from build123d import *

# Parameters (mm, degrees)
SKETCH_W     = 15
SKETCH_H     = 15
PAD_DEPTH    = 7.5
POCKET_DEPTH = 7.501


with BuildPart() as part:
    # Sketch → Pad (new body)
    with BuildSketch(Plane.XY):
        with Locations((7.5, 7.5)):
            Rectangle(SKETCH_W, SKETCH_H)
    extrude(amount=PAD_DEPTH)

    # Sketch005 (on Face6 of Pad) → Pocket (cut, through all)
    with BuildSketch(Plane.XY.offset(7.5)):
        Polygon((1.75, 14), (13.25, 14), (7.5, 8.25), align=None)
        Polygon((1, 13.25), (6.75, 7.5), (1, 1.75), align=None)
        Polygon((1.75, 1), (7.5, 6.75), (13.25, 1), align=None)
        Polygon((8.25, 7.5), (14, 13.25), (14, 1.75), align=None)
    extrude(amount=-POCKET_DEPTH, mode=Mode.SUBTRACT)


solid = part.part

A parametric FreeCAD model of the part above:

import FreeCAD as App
import Part
import Sketcher
from FreeCAD import Vector
Q = App.Units.Quantity

doc = App.newDocument("Part")
body = doc.addObject("PartDesign::Body", "Body")

# Sketch on XY plane
sketch1 = body.newObject("Sketcher::SketchObject", "Sketch")
sketch1.AttachmentSupport = (doc.getObject("XY_Plane"), [""])
sketch1.MapMode = "FlatFace"
sketch1.addGeometry([
    Part.LineSegment(Vector(0, 15, 0), Vector(0, 0, 0)),
    Part.LineSegment(Vector(0, 0, 0), Vector(15, 0, 0)),
    Part.LineSegment(Vector(15, 0, 0), Vector(15, 15, 0)),
    Part.LineSegment(Vector(15, 15, 0), Vector(0, 15, 0)),
], False)
sketch1.addConstraint([
    Sketcher.Constraint("Coincident", 0, 2, 1, 1),
    Sketcher.Constraint("Coincident", 1, 2, 2, 1),
    Sketcher.Constraint("Coincident", 2, 2, 3, 1),
    Sketcher.Constraint("Coincident", 3, 2, 0, 1),
    Sketcher.Constraint("Vertical", 0),
    Sketcher.Constraint("Horizontal", 1),
    Sketcher.Constraint("Vertical", 2),
    Sketcher.Constraint("Horizontal", 3),
    Sketcher.Constraint("Coincident", 0, 2, -1, 1),
    Sketcher.Constraint("Equal", 3, 0),
    Sketcher.Constraint("DistanceX", 1, 1, 1, 2, Q("15 mm")),
])
pad1 = body.newObject("PartDesign::Pad", "Pad")
pad1.Profile = sketch1
pad1.Length = 7.5

# Sketch on XY plane
sketch2 = body.newObject("Sketcher::SketchObject", "Sketch001")
sketch2.AttachmentSupport = (doc.getObject("XY_Plane"), [""])
sketch2.MapMode = "FlatFace"
sketch2.AttachmentOffset = App.Placement(Vector(0, 0, 7.5), App.Rotation())
sketch2.addGeometry([
    Part.LineSegment(Vector(13, 14, 0), Vector(2, 14, 0)),  # 0
    Part.LineSegment(Vector(2, 14, 0), Vector(8, 8, 0)),  # 1
    Part.LineSegment(Vector(8, 8, 0), Vector(13, 14, 0)),  # 2
    Part.LineSegment(Vector(7, 8, 0), Vector(1, 13, 0)),  # 3
    Part.LineSegment(Vector(1, 13, 0), Vector(1, 2, 0)),  # 4
    Part.LineSegment(Vector(1, 2, 0), Vector(7, 8, 0)),  # 5
    Part.LineSegment(Vector(8, 7, 0), Vector(2, 1, 0)),  # 6
    Part.LineSegment(Vector(2, 1, 0), Vector(13, 1, 0)),  # 7
    Part.LineSegment(Vector(13, 1, 0), Vector(8, 7, 0)),  # 8
    Part.LineSegment(Vector(14, 13, 0), Vector(8, 8, 0)),  # 9
    Part.LineSegment(Vector(8, 8, 0), Vector(14, 2, 0)),  # 10
    Part.LineSegment(Vector(14, 2, 0), Vector(14, 13, 0)),  # 11
], False)
sketch2.addConstraint([
    Sketcher.Constraint("Coincident", 0, 2, 1, 1),
    Sketcher.Constraint("Coincident", 1, 2, 2, 1),
    Sketcher.Constraint("Coincident", 2, 2, 0, 1),
    Sketcher.Constraint("Coincident", 3, 2, 4, 1),
    Sketcher.Constraint("Coincident", 4, 2, 5, 1),
    Sketcher.Constraint("Coincident", 5, 2, 3, 1),
    Sketcher.Constraint("Coincident", 6, 2, 7, 1),
    Sketcher.Constraint("Coincident", 7, 2, 8, 1),
    Sketcher.Constraint("Coincident", 8, 2, 6, 1),
    Sketcher.Constraint("Coincident", 9, 2, 10, 1),
    Sketcher.Constraint("Coincident", 10, 2, 11, 1),
    Sketcher.Constraint("Coincident", 11, 2, 9, 1),
    Sketcher.Constraint("Horizontal", 0),
    Sketcher.Constraint("Vertical", 4),
    Sketcher.Constraint("Horizontal", 7),
    Sketcher.Constraint("Vertical", 11),
    Sketcher.Constraint("Perpendicular", 1, 2),
    Sketcher.Constraint("Perpendicular", 2, 3),
    Sketcher.Constraint("Perpendicular", 3, 5),
    Sketcher.Constraint("Parallel", 5, 6),
    Sketcher.Constraint("Perpendicular", 6, 8),
    Sketcher.Constraint("Perpendicular", 8, 9),
    Sketcher.Constraint("Perpendicular", 9, 10),
    Sketcher.Constraint("Horizontal", 5, 2, 9, 2),
    Sketcher.Constraint("Horizontal", 4, 2, 10, 2),
    Sketcher.Constraint("Horizontal", 3, 2, 11, 2),
    Sketcher.Constraint("Vertical", 0, 2, 6, 2),
    Sketcher.Constraint("Vertical", 2, 2, 7, 2),
    Sketcher.Constraint("Equal", 7, 4),
    Sketcher.Constraint("DistanceX", 0, 2, 0, 1, Q("11.5 mm")),
    Sketcher.Constraint("DistanceY", -1, 1, 0, 2, Q("14 mm")),
    Sketcher.Constraint("DistanceX", -1, 1, 3, 2, Q("1 mm")),
    Sketcher.Constraint("DistanceY", -1, 1, 6, 2, Q("1 mm")),
    Sketcher.Constraint("DistanceX", -1, 1, 10, 2, Q("14 mm")),
    Sketcher.Constraint("DistanceY", 1, 2, 3, 2, Q("5 mm")),
    Sketcher.Constraint("DistanceX", 0, 2, 5, 2, Q("5 mm")),
])
pocket1 = body.newObject("PartDesign::Pocket", "Pocket")
pocket1.Profile = sketch2
pocket1.Type = "ThroughAll"

doc.recompute()
